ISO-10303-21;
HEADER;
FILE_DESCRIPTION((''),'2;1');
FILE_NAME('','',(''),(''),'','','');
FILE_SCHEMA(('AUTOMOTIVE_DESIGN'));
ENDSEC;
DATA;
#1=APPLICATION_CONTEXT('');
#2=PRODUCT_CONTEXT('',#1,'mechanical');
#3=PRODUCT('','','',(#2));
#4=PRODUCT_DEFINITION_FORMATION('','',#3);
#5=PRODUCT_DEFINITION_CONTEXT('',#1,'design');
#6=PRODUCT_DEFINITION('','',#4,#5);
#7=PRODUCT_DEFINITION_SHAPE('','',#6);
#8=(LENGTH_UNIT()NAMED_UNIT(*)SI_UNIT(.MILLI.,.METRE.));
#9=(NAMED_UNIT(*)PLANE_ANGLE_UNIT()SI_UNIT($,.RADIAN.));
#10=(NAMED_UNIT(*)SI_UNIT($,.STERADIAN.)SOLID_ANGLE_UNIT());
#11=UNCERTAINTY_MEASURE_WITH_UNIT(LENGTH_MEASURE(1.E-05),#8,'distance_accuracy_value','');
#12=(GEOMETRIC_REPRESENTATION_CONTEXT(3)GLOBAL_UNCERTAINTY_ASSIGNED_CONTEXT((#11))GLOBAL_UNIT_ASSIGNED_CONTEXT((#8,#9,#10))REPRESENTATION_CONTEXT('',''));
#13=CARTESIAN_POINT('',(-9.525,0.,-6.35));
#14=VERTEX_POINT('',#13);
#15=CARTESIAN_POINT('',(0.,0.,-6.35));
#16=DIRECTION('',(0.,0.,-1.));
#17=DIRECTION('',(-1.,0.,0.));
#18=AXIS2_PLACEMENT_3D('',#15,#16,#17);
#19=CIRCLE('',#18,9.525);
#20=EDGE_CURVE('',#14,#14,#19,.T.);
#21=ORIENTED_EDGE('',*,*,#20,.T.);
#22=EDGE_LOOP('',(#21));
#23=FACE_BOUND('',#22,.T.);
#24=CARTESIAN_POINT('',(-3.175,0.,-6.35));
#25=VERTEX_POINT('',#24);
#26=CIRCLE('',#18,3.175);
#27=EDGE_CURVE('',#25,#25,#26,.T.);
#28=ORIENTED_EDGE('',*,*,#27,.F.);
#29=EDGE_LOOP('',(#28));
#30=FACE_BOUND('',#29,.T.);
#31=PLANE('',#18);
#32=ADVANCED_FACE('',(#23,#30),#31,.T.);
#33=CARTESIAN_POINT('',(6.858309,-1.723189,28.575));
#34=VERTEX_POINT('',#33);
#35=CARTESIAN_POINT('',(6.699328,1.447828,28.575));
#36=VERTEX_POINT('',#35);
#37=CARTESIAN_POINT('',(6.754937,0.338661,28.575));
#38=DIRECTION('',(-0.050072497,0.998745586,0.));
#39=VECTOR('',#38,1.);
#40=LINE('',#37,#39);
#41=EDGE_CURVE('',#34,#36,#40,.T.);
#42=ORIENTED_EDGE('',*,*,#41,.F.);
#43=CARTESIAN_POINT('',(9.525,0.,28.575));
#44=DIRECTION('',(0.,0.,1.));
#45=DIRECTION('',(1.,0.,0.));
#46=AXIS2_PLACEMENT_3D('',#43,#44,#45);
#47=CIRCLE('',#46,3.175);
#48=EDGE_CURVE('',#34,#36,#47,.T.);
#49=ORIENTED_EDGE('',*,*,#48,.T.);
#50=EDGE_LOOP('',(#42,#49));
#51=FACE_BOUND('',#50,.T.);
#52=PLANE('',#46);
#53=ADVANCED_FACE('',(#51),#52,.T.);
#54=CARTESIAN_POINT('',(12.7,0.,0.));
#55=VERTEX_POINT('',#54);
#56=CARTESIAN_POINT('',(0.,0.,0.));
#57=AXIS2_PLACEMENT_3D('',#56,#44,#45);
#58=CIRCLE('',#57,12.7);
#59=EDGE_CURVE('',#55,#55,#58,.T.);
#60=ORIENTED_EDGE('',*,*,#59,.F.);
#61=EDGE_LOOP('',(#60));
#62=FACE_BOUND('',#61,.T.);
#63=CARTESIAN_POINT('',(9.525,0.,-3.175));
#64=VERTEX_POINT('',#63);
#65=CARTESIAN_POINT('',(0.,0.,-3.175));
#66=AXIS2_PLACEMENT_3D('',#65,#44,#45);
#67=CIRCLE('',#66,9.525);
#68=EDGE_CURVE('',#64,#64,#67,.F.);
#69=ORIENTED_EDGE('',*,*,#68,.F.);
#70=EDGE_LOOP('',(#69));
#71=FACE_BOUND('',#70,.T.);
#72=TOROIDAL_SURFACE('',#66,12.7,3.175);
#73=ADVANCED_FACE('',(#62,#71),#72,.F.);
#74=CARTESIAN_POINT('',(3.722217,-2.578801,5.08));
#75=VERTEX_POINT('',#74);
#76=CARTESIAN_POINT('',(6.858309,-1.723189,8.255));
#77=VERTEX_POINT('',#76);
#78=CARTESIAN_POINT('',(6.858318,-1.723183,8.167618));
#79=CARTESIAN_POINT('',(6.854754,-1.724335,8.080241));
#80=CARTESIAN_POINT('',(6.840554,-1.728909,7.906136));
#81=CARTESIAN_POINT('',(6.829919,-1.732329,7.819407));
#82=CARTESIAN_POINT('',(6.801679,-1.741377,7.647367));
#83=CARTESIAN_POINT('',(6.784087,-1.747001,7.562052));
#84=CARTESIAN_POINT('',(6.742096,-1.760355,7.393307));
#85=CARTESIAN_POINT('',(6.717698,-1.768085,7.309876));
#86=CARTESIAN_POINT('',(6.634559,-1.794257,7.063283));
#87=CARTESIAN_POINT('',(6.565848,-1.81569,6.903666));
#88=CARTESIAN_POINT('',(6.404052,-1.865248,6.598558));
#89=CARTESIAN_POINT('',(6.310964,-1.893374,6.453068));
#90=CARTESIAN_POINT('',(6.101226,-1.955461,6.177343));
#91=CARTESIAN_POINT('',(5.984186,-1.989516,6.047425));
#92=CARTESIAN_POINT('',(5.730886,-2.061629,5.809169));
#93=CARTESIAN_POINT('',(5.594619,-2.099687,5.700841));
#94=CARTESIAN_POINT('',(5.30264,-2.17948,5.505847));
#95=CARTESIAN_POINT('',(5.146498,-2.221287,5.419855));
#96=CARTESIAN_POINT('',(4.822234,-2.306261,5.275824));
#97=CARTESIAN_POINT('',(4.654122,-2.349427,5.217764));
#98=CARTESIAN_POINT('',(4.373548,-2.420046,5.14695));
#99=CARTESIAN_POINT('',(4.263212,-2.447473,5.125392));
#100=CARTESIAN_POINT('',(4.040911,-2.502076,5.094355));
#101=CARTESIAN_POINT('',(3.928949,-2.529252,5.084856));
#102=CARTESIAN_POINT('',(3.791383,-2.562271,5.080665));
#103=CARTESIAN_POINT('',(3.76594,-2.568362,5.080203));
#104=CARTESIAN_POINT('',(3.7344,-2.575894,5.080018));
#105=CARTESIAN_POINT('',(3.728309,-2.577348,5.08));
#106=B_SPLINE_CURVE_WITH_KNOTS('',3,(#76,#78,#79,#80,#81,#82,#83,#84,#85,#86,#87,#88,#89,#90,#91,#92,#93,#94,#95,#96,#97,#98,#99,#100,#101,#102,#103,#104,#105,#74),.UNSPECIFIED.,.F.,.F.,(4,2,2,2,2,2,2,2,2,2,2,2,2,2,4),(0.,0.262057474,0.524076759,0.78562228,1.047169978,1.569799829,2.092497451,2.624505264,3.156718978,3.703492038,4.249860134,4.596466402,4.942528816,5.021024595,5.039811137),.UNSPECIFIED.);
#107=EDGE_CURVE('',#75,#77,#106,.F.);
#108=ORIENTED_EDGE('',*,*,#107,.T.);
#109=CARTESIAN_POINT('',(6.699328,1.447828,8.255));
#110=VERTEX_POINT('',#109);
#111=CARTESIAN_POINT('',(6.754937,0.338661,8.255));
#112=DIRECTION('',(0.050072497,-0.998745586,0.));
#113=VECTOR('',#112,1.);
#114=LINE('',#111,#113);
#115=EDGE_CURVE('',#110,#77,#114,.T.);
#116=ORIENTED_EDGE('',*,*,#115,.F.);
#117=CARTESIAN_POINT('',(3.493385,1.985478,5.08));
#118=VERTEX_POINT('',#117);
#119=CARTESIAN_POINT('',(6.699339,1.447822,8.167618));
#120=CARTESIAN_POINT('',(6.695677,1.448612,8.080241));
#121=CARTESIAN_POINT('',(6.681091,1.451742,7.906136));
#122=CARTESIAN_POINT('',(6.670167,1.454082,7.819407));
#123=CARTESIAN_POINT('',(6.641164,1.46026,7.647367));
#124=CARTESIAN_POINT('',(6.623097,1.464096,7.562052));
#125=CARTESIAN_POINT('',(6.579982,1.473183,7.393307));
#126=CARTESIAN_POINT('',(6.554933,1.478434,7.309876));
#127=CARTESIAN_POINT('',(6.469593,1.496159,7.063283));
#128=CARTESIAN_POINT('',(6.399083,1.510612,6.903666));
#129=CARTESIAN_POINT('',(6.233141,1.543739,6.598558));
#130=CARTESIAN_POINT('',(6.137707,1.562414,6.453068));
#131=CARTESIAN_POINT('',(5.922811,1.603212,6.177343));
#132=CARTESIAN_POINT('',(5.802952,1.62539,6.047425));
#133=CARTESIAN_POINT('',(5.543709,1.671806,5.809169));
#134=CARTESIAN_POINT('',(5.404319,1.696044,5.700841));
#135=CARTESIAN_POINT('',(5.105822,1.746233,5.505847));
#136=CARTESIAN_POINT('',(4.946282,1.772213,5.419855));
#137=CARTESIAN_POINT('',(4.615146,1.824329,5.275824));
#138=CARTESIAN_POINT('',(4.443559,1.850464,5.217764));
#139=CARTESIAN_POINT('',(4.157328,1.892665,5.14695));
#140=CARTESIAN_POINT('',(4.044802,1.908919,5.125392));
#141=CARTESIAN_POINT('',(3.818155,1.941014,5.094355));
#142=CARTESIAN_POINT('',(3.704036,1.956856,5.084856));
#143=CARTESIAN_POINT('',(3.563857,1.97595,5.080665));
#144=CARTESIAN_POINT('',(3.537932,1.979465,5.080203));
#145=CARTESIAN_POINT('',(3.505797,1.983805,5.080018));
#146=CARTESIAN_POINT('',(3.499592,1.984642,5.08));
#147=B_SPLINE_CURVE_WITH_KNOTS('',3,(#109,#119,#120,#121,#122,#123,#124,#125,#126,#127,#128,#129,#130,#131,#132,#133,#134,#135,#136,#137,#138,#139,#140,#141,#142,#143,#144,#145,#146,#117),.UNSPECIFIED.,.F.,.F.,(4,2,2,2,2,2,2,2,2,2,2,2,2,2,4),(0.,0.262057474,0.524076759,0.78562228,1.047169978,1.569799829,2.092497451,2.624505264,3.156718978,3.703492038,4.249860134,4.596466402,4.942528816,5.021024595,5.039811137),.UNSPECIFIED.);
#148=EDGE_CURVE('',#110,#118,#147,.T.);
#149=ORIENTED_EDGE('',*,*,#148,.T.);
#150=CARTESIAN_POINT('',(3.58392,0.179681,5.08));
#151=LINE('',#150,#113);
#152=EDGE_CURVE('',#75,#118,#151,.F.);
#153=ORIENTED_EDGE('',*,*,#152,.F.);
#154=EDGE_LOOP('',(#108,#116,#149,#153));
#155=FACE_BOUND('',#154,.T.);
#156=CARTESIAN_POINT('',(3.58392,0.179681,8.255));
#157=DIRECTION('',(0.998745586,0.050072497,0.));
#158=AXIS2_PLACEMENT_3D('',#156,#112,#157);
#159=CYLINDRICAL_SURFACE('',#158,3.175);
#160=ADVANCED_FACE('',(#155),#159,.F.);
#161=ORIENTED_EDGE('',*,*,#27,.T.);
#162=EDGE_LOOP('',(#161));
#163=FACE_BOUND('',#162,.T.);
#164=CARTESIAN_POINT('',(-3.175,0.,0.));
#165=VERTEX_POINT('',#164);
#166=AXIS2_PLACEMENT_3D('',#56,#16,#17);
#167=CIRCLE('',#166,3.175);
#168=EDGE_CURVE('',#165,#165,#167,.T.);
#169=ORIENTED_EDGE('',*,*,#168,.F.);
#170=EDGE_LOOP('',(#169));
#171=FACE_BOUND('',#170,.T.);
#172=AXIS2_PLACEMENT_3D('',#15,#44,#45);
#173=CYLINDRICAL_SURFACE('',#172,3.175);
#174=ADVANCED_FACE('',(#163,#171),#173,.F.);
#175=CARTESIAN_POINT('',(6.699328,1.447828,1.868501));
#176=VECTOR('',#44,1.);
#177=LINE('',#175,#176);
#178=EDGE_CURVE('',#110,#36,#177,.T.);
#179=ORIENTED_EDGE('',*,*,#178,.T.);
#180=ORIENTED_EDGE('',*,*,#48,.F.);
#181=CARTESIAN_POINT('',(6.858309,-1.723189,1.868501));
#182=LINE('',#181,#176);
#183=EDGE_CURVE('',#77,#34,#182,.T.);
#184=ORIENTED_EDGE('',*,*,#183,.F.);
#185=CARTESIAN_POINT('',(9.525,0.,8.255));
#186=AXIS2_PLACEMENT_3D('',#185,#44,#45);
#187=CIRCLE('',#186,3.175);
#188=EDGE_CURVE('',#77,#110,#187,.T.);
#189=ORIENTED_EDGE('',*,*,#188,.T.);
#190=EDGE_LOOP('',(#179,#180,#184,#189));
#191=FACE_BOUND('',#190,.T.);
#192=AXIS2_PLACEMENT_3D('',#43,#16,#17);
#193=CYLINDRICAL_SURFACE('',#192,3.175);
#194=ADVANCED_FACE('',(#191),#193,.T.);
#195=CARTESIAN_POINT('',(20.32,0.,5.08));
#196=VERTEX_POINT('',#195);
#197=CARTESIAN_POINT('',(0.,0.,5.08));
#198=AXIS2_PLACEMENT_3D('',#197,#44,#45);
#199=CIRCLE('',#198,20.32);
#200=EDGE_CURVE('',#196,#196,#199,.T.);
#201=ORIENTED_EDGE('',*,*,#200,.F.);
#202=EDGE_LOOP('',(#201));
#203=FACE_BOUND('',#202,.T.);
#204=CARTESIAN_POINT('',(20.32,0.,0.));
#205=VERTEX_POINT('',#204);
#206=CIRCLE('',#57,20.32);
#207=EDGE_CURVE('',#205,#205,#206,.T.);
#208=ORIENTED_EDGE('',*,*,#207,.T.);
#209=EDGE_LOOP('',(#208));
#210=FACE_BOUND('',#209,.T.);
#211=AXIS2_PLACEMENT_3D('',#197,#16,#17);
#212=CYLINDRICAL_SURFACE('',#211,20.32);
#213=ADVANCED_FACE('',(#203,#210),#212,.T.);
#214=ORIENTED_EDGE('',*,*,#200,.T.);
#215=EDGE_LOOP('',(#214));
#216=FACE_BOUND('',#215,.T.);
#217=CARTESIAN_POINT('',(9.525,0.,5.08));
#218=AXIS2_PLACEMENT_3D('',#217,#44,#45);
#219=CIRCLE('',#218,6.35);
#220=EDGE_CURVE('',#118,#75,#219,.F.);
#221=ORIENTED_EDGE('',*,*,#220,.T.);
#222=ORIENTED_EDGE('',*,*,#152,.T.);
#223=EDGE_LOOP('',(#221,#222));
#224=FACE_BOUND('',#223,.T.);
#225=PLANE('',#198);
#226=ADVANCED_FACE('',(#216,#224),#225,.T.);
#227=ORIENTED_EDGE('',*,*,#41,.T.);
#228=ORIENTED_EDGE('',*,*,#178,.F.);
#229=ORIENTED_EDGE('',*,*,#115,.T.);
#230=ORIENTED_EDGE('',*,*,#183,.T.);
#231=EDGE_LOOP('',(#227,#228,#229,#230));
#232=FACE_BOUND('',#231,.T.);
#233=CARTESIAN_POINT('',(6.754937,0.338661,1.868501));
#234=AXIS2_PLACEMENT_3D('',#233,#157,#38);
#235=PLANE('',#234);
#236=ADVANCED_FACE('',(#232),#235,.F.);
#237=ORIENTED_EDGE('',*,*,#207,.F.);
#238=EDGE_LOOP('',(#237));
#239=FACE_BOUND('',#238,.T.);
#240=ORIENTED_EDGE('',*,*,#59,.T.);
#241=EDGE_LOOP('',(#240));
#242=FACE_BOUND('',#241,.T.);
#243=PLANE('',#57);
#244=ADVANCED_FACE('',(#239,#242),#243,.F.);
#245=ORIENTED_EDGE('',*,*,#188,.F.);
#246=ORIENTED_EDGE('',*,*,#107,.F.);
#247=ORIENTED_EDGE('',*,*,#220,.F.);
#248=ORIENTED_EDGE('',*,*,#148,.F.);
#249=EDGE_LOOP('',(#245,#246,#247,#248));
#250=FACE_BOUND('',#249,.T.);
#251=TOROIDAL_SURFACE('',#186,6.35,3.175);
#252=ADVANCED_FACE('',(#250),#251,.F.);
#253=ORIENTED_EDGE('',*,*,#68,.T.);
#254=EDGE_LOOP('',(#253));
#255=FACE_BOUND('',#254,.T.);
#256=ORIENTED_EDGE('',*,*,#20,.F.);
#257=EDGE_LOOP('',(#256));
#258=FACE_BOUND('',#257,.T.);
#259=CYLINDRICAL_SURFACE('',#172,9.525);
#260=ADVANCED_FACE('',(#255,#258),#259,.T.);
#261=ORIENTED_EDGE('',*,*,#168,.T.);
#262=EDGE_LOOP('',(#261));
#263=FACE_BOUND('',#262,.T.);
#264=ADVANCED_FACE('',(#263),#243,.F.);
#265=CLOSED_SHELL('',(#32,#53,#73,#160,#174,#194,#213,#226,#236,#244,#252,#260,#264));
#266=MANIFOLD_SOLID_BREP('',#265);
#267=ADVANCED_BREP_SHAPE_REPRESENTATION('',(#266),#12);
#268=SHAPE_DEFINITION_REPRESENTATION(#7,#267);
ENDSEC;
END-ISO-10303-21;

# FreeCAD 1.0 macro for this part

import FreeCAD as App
import Part
import Sketcher
from FreeCAD import Vector
Q = App.Units.Quantity


def edges_at(feature, points):
    """Names of the edges that pass closest to the given points."""
    edges = feature.Shape.Edges
    near = lambda p: min(range(len(edges)), key=lambda i: edges[i].distToShape(Part.Vertex(*p))[0])
    return sorted({f"Edge{near(p) + 1}" for p in points})

doc = App.newDocument("Part")
body = doc.addObject("PartDesign::Body", "Body")

# Sketch on XY plane
sketch1 = doc.addObject("Sketcher::SketchObject", "Sketch")
body.addObject(sketch1)
sketch1.AttachmentSupport = (doc.XY_Plane, [""])
sketch1.MapMode = "FlatFace"
sketch1.addGeometry(Part.Circle(Vector(0, 0, 0), Vector(0, 0, 1), 20.32), False)
sketch1.addGeometry(Part.Circle(Vector(0, 0, 0), Vector(0, 0, 1), 3.175), False)
sketch1.addGeometry(Part.Circle(Vector(9.525, 0, 0), Vector(0, 0, 1), 3.175), False)
sketch1.addConstraint(Sketcher.Constraint("Coincident", 0, 3, -1, 1))
sketch1.addConstraint(Sketcher.Constraint("Coincident", 1, 3, -1, 1))
sketch1.addConstraint(Sketcher.Constraint("Equal", 1, 2))
sketch1.addConstraint(Sketcher.Constraint("PointOnObject", 2, 3, -1))
sketch1.addConstraint(Sketcher.Constraint("Diameter", 0, Q("1.6 in")))
sketch1.addConstraint(Sketcher.Constraint("Diameter", 1, Q("0.25 in")))
sketch1.addConstraint(Sketcher.Constraint("DistanceX", -1, 1, 2, 3, Q("0.375 in")))
pad1 = doc.addObject("PartDesign::Pad", "Pad")
body.addObject(pad1)
pad1.Profile = sketch1
pad1.Length = Q("0.2 in")

# Sketch on XY plane
sketch2 = doc.addObject("Sketcher::SketchObject", "Sketch001")
body.addObject(sketch2)
sketch2.AttachmentSupport = (doc.XY_Plane, [""])
sketch2.MapMode = "FlatFace"
sketch2.addGeometry(Part.Circle(Vector(9.525, 0, 0), Vector(0, 0, 1), 3.175), False)
sketch2.addConstraint(Sketcher.Constraint("PointOnObject", 0, 3, -1))
sketch2.addConstraint(Sketcher.Constraint("Diameter", 0, Q("0.25 in")))
sketch2.addConstraint(Sketcher.Constraint("DistanceX", -1, 1, 0, 3, Q("0.375 in")))
pad2 = doc.addObject("PartDesign::Pad", "Pad001")
body.addObject(pad2)
pad2.Profile = sketch2
pad2.Length = Q("1.125 in")

# Sketch on XY plane
sketch3 = doc.addObject("Sketcher::SketchObject", "Sketch002")
body.addObject(sketch3)
sketch3.AttachmentSupport = (doc.XY_Plane, [""])
sketch3.MapMode = "FlatFace"
sketch3.AttachmentOffset = App.Placement(Vector(0, 0, 1.125 * 25.4), App.Rotation())
sketch3.addGeometry(Part.LineSegment(Vector(10.863483, -81.610356, 0), Vector(6.858309, -1.723189, 0)), False)
sketch3.addGeometry(Part.LineSegment(Vector(6.858309, -1.723189, 0), Vector(6.699328, 1.447828, 0)), False)
sketch3.addGeometry(Part.LineSegment(Vector(6.699328, 1.447828, 0), Vector(2.694154, 81.334994, 0)), False)
sketch3.addGeometry(Part.LineSegment(Vector(2.694154, 81.334994, 0), Vector(-157.080178, 73.324646, 0)), False)
sketch3.addGeometry(Part.LineSegment(Vector(-157.080178, 73.324646, 0), Vector(-148.910849, -89.620704, 0)), False)
sketch3.addGeometry(Part.LineSegment(Vector(-148.910849, -89.620704, 0), Vector(10.863483, -81.610356, 0)), False)
sketch3.addConstraint(Sketcher.Constraint("Coincident", 0, 2, 1, 1))
sketch3.addConstraint(Sketcher.Constraint("Coincident", 1, 2, 2, 1))
sketch3.addConstraint(Sketcher.Constraint("Coincident", 2, 2, 3, 1))
sketch3.addConstraint(Sketcher.Constraint("Coincident", 3, 2, 4, 1))
sketch3.addConstraint(Sketcher.Constraint("Coincident", 4, 2, 5, 1))
sketch3.addConstraint(Sketcher.Constraint("Coincident", 5, 2, 0, 1))
sketch3.addConstraint(Sketcher.Constraint("Distance", 1, Q("0.125 in")))
sketch3.addConstraint(Sketcher.Constraint("DistanceY", 5, 2, 3, 2, Q("154.935001 mm")))
sketch3.addConstraint(Sketcher.Constraint("DistanceX", -1, 1, 0, 2, Q("6.858309 mm")))
sketch3.addConstraint(Sketcher.Constraint("DistanceY", 0, 2, -1, 1, Q("1.723189 mm")))
sketch3.addConstraint(Sketcher.Constraint("DistanceX", -1, 1, 1, 2, Q("6.699328 mm")))
sketch3.addConstraint(Sketcher.Constraint("DistanceX", 4, 2, -1, 1, Q("148.910849 mm")))
sketch3.addConstraint(Sketcher.Constraint("DistanceY", 3, 2, 2, 2, Q("8.010348 mm")))
sketch3.addConstraint(Sketcher.Constraint("DistanceX", 3, 2, 4, 2, Q("8.169328 mm")))
sketch3.addConstraint(Sketcher.Constraint("DistanceY", 4, 2, 3, 2, Q("162.945349 mm")))
sketch3.addConstraint(Sketcher.Constraint("DistanceY", 4, 2, 1, 2, Q("91.068531 mm")))
sketch3.addConstraint(Sketcher.Constraint("DistanceX", 2, 2, 5, 2, Q("8.169328 mm")))
sketch3.addConstraint(Sketcher.Constraint("DistanceX", 3, 2, 5, 2, Q("167.94366 mm")))
pocket1 = doc.addObject("PartDesign::Pocket", "Pocket")
body.addObject(pocket1)
pocket1.Profile = sketch3
pocket1.Length = Q("0.925 in")

# Sketch on XY plane
sketch4 = doc.addObject("Sketcher::SketchObject", "Sketch003")
body.addObject(sketch4)
sketch4.AttachmentSupport = (doc.XY_Plane, [""])
sketch4.MapMode = "FlatFace"
sketch4.AttachmentOffset = App.Placement(Vector(0, 0, 0.2 * 25.4), App.Rotation())
sketch4.addGeometry(Part.Circle(Vector(0, 0, 0), Vector(0, 0, 1), 4.09781), False)
sketch4.addConstraint(Sketcher.Constraint("Coincident", 0, 3, -1, 1))
sketch4.addConstraint(Sketcher.Constraint("Diameter", 0, Q("8.19562 mm")))
pad3 = doc.addObject("PartDesign::Pad", "Pad002")
body.addObject(pad3)
pad3.Profile = sketch4
pad3.Length = Q("0.2 in")
pad3.Reversed = True

# Sketch on XY plane
sketch5 = doc.addObject("Sketcher::SketchObject", "Sketch004")
body.addObject(sketch5)
sketch5.AttachmentSupport = (doc.XY_Plane, [""])
sketch5.MapMode = "FlatFace"
sketch5.addGeometry(Part.Circle(Vector(0, 0, 0), Vector(0, 0, 1), 9.525), False)
sketch5.addGeometry(Part.Circle(Vector(0, 0, 0), Vector(0, 0, 1), 3.175), False)
sketch5.addConstraint(Sketcher.Constraint("Coincident", 0, 3, -1, 1))
sketch5.addConstraint(Sketcher.Constraint("Coincident", 1, 3, -1, 1))
sketch5.addConstraint(Sketcher.Constraint("Diameter", 0, Q("0.75 in")))
sketch5.addConstraint(Sketcher.Constraint("Diameter", 1, Q("0.25 in")))
pad4 = doc.addObject("PartDesign::Pad", "Pad003")
body.addObject(pad4)
pad4.Profile = sketch5
pad4.Length = Q("0.25 in")
pad4.Reversed = True
doc.recompute()

fillet = doc.addObject("PartDesign::Fillet", "Fillet")
body.addObject(fillet)
fillet.Base = (pad4, edges_at(pad4, [(12.696, 0.159, 5.08), (6.779, -0.138, 5.08), (9.525, 0, 0)]))
fillet.Radius = Q("0.125 in")

doc.recompute()
